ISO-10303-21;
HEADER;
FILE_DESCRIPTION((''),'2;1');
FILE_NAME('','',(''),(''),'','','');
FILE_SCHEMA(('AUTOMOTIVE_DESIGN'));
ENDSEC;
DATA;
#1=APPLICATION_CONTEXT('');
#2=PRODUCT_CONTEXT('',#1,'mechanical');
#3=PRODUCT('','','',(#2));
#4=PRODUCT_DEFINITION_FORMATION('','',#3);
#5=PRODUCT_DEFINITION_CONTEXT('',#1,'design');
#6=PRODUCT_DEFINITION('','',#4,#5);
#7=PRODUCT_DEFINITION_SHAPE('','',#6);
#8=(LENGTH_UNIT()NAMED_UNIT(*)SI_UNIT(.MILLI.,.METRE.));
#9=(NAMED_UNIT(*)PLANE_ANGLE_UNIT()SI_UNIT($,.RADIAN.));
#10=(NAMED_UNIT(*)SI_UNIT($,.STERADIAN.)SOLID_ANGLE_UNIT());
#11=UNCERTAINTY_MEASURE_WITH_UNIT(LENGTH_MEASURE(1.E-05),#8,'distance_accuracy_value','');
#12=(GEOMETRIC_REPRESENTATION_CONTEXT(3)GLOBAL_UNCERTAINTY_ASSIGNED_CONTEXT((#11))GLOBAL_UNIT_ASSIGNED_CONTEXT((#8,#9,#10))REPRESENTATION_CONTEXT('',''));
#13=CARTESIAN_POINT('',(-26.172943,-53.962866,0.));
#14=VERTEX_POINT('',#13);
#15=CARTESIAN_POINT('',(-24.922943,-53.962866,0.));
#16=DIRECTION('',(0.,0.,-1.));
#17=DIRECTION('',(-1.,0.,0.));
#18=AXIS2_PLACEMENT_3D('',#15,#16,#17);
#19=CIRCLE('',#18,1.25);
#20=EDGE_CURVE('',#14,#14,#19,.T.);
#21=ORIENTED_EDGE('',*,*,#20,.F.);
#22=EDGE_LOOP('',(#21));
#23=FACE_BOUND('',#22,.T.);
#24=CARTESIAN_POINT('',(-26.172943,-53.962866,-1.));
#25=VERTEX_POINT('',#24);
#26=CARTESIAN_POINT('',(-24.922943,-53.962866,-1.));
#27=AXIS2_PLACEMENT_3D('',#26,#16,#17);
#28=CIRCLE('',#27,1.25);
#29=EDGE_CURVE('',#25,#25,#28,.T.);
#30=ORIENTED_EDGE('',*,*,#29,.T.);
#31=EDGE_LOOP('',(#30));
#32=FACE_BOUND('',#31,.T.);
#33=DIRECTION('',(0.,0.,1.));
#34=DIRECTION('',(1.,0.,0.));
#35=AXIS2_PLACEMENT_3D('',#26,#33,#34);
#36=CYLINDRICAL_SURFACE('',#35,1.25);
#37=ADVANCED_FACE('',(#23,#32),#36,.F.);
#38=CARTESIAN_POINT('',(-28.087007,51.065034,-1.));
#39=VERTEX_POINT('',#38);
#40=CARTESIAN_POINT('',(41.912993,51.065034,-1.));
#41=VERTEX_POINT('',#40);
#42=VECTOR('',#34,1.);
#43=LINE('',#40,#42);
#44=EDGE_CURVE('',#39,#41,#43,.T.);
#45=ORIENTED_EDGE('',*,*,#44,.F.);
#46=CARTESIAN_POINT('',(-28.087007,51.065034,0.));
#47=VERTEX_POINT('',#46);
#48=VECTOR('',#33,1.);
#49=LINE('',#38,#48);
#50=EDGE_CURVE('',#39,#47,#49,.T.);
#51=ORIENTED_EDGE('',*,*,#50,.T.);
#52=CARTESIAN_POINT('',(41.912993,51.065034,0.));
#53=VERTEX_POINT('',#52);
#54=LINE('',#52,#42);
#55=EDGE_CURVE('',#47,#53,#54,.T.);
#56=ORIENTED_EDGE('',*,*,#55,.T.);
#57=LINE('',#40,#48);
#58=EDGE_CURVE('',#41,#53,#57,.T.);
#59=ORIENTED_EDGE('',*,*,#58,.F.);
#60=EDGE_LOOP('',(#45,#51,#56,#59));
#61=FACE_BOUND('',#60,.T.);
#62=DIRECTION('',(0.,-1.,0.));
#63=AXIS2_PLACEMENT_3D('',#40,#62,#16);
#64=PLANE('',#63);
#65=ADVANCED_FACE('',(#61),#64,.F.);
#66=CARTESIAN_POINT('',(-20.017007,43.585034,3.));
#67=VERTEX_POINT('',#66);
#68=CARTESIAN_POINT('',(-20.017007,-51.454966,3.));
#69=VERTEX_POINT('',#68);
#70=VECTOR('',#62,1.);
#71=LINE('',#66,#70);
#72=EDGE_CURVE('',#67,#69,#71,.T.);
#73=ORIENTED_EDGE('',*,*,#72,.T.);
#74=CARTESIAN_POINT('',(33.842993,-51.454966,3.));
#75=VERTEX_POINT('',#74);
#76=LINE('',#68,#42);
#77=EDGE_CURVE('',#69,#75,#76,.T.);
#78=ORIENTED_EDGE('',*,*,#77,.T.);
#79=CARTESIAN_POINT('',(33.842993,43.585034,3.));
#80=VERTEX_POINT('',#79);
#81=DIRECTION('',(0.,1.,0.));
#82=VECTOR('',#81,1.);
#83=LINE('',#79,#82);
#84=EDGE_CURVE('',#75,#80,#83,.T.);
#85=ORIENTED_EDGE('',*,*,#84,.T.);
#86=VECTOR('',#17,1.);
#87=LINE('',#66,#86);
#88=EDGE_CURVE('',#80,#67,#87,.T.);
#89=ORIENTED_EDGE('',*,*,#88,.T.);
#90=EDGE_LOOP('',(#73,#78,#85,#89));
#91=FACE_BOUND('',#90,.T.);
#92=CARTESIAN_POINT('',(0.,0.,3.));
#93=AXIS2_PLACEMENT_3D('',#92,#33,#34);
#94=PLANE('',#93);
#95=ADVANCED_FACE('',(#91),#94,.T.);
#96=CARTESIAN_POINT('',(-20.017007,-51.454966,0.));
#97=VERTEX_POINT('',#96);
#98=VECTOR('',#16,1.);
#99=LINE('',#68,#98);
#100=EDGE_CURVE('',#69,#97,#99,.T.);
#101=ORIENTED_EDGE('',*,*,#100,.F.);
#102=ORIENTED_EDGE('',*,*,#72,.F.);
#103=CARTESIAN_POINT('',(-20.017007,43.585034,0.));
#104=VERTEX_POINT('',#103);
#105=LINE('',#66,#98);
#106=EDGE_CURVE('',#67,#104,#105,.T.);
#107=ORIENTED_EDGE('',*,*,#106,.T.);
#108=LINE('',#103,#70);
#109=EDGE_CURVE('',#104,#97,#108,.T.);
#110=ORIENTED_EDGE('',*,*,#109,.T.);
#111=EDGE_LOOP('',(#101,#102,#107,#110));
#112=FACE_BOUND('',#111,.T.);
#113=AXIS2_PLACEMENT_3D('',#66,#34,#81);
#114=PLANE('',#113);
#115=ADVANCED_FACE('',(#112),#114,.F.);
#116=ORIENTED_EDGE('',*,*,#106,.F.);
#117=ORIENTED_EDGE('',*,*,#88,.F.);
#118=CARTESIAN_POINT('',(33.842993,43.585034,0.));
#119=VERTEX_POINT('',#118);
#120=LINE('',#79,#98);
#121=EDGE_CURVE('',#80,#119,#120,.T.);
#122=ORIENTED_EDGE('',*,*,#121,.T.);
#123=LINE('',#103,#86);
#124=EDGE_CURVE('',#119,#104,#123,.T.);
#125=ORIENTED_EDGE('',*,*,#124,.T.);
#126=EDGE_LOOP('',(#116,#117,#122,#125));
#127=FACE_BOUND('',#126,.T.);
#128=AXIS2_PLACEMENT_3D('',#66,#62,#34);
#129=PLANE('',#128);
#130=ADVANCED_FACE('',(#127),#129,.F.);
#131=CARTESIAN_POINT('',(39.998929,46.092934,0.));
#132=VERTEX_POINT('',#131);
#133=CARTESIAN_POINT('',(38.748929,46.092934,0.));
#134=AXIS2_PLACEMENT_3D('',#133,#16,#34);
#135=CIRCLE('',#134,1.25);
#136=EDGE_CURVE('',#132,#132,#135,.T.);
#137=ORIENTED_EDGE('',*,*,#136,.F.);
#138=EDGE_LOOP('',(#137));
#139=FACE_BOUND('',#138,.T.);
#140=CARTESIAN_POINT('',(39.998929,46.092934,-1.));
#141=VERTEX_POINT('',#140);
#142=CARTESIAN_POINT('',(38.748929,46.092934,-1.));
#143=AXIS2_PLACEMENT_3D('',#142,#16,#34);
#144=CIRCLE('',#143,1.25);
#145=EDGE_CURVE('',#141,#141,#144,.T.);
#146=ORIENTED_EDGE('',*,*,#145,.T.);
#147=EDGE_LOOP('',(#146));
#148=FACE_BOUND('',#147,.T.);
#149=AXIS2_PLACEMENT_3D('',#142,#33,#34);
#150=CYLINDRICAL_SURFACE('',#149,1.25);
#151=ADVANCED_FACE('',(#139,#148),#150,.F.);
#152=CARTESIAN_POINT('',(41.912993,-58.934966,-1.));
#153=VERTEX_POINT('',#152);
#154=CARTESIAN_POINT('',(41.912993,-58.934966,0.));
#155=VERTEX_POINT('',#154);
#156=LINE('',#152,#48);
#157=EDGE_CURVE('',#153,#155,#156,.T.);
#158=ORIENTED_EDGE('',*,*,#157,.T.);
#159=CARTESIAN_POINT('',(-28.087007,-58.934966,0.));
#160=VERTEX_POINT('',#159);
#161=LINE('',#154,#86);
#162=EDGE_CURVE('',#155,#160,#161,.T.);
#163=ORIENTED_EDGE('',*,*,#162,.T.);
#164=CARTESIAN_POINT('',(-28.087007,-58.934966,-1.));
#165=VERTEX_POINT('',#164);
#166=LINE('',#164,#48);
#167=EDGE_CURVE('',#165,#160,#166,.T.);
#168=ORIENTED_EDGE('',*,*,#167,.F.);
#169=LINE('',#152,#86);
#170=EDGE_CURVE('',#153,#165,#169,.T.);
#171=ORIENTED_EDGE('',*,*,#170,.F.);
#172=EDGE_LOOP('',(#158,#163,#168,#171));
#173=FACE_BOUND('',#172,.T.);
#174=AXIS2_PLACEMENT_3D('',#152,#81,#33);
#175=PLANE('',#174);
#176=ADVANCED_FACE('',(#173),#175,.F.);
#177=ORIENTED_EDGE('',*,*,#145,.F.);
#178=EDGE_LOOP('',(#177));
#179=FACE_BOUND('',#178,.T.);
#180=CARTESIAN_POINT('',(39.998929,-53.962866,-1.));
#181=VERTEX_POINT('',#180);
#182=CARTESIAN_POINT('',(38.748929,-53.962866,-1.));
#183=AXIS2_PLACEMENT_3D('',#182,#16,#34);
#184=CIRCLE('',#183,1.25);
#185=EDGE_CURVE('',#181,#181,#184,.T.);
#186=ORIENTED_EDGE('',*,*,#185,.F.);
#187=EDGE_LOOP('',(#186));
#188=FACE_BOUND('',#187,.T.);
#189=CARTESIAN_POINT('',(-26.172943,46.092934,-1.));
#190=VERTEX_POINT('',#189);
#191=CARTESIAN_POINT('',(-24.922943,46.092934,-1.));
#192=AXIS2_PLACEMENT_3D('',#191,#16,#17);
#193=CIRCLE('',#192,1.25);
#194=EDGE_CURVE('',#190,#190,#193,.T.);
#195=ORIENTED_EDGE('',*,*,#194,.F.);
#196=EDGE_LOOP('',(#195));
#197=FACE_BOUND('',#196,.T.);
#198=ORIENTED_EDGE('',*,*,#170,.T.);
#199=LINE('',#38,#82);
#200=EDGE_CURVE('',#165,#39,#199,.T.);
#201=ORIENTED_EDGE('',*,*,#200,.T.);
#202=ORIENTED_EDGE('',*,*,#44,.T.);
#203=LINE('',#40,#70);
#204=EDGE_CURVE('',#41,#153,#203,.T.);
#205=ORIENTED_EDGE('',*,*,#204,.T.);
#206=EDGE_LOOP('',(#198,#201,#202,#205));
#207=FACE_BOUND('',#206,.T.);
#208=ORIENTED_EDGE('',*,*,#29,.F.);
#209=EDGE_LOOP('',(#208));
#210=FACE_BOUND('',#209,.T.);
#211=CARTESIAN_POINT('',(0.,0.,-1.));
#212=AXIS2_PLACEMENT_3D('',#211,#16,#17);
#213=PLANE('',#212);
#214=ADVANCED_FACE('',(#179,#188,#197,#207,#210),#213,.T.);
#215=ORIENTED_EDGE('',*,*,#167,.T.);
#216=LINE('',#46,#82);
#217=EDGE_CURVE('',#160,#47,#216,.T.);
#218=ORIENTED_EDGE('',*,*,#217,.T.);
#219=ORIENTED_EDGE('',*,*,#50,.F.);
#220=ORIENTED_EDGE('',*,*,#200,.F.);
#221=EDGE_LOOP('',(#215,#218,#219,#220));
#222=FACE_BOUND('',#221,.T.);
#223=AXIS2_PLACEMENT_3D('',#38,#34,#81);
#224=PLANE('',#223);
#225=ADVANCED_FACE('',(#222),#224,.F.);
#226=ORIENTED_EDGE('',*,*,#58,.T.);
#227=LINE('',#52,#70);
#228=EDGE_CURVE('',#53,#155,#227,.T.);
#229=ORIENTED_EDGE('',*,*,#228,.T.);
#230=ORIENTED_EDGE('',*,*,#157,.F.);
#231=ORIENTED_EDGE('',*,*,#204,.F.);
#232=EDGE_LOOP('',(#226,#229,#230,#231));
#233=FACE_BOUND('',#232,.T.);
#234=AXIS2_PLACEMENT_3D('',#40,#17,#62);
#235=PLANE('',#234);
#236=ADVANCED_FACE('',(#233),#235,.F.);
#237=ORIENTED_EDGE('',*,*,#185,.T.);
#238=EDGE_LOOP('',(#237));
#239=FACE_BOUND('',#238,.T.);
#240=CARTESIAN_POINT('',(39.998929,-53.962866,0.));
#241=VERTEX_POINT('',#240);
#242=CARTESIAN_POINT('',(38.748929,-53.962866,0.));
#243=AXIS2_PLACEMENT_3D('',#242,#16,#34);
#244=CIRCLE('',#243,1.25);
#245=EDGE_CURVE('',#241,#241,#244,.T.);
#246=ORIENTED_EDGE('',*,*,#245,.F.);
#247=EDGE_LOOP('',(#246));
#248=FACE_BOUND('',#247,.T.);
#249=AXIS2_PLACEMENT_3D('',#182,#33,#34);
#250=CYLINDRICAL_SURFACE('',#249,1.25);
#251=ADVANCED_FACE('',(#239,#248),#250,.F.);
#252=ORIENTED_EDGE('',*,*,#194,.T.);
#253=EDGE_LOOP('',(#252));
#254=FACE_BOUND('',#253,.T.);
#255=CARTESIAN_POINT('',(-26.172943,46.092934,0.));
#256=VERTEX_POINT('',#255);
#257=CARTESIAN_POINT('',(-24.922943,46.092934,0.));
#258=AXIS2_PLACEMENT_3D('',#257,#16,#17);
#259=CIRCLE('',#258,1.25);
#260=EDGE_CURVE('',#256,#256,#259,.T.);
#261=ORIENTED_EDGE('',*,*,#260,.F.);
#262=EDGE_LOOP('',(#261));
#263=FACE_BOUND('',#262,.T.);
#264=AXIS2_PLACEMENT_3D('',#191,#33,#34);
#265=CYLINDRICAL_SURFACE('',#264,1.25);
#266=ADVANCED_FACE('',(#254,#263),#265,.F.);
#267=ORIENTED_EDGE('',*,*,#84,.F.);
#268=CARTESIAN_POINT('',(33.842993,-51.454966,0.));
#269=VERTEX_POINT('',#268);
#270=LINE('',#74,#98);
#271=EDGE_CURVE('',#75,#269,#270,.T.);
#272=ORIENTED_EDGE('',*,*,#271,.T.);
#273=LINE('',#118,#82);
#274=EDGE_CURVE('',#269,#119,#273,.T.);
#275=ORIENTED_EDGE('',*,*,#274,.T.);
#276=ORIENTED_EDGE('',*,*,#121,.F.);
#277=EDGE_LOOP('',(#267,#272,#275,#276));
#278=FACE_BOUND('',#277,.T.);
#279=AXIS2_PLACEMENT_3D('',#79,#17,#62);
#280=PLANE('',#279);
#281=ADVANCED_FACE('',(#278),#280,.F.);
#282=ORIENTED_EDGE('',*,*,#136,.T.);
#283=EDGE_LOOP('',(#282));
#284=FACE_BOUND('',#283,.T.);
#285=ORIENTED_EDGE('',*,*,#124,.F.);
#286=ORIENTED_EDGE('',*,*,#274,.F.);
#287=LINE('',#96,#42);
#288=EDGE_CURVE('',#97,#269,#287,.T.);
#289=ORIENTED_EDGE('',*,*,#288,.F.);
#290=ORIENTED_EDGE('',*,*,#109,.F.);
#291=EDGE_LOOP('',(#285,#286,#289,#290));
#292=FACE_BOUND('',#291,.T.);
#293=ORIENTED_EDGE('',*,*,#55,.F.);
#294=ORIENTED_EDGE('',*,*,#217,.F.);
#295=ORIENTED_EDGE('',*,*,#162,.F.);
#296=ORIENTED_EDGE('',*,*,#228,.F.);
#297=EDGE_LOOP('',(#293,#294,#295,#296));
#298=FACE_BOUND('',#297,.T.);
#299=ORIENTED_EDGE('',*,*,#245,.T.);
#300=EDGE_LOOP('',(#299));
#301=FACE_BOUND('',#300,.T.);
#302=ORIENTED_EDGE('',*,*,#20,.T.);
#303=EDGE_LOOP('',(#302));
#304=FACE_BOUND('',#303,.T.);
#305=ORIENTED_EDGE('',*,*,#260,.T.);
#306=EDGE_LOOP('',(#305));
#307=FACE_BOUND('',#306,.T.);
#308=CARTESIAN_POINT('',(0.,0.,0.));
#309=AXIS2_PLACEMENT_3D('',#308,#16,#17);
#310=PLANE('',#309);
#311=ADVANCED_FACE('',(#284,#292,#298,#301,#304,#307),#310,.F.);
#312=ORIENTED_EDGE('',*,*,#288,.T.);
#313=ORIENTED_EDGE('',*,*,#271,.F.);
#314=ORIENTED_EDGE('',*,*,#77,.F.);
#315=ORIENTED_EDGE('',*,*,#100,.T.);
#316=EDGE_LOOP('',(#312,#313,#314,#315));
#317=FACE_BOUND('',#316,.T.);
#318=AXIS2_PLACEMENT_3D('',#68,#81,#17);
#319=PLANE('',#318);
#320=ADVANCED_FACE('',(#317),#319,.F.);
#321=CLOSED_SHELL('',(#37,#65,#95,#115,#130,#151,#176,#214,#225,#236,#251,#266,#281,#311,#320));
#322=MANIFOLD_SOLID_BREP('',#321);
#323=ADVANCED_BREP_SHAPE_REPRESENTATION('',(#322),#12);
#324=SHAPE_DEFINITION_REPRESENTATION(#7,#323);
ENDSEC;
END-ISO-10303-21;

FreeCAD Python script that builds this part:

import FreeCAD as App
import Part
import Sketcher
from FreeCAD import Vector
Q = App.Units.Quantity


def add_polygon(sketch, points):
    """Adds a closed chain of lines whose ends are joined by coincident constraints."""
    first, n = sketch.GeometryCount, len(points)
    for a, b in zip(points, points[1:] + points[:1]):
        sketch.addGeometry(Part.LineSegment(App.Vector(*a, 0), App.Vector(*b, 0)), False)
    for i in range(n):
        sketch.addConstraint(Sketcher.Constraint("Coincident", first + i, 2, first + (i + 1) % n, 1))

doc = App.newDocument("Part")
params = doc.addObject("Spreadsheet::Sheet", "Params")
for row, (alias, value) in enumerate([
    ("sketch1_width", "53.86 mm"),
    ("sketch1_height", "95.04 mm"),
    ("pad1_length", "3 mm"),
    ("sketch2_diameter", "2.5 mm"),
    ("sketch2_width", "70 mm"),
    ("sketch2_height", "110 mm"),
    ("pad2_length", "1 mm"),
], start=1):
    params.set(f"A{row}", alias)
    params.set(f"B{row}", "=" + value)
    params.setAlias(f"B{row}", alias)

body = doc.addObject("PartDesign::Body", "Body")

# Sketch on XY plane
sketch1 = body.newObject("Sketcher::SketchObject", "Sketch")
sketch1.AttachmentSupport = (doc.getObject("XY_Plane"), [""])
sketch1.MapMode = "FlatFace"
add_polygon(sketch1, [(-20.017007, 43.585034), (-20.017007, -51.454966), (33.842993, -51.454966), (33.842993, 43.585034)])  # lines 0-3
sketch1.addConstraint(Sketcher.Constraint("Vertical", 0))
sketch1.addConstraint(Sketcher.Constraint("Horizontal", 1))
sketch1.addConstraint(Sketcher.Constraint("Vertical", 2))
sketch1.addConstraint(Sketcher.Constraint("Horizontal", 3))
sketch1.addConstraint(Sketcher.Constraint("DistanceX", 1, 1, 1, 2, Q("53.86 mm")))
sketch1.addConstraint(Sketcher.Constraint("DistanceY", 0, 2, 0, 1, Q("95.04 mm")))
sketch1.addConstraint(Sketcher.Constraint("DistanceX", 0, 2, -1, 1, Q("20.017007 mm")))
sketch1.addConstraint(Sketcher.Constraint("DistanceY", 0, 2, -1, 1, Q("51.454966 mm")))
sketch1.setExpression("Constraints[8]", "Params.sketch1_width")
sketch1.setExpression("Constraints[9]", "Params.sketch1_height")
pad1 = body.newObject("PartDesign::Pad", "Pad")
pad1.Profile = sketch1
pad1.setExpression("Length", "Params.pad1_length")

# Sketch on XY plane
sketch2 = body.newObject("Sketcher::SketchObject", "Sketch001")
sketch2.AttachmentSupport = (doc.getObject("XY_Plane"), [""])
sketch2.MapMode = "FlatFace"
add_polygon(sketch2, [(41.912993, 51.065034), (41.912993, -58.934966), (-28.087007, -58.934966), (-28.087007, 51.065034)])  # lines 0-3
sketch2.addGeometry(Part.Circle(Vector(38.748929, -53.962866, 0), Vector(0, 0, 1), 1.25), False)  # 4
sketch2.addGeometry(Part.Circle(Vector(-24.922943, -53.962866, 0), Vector(0, 0, 1), 1.25), False)  # 5
sketch2.addGeometry(Part.Circle(Vector(38.748929, 46.092934, 0), Vector(0, 0, 1), 1.25), False)  # 6
sketch2.addGeometry(Part.Circle(Vector(-24.922943, 46.092934, 0), Vector(0, 0, 1), 1.25), False)  # 7
sketch2.addConstraint(Sketcher.Constraint("Vertical", 0))
sketch2.addConstraint(Sketcher.Constraint("Horizontal", 1))
sketch2.addConstraint(Sketcher.Constraint("Vertical", 2))
sketch2.addConstraint(Sketcher.Constraint("Horizontal", 3))
sketch2.addConstraint(Sketcher.Constraint("Equal", 4, 5))
sketch2.addConstraint(Sketcher.Constraint("Equal", 5, 6))
sketch2.addConstraint(Sketcher.Constraint("Equal", 6, 7))
sketch2.addConstraint(Sketcher.Constraint("Horizontal", 4, 3, 5, 3))
sketch2.addConstraint(Sketcher.Constraint("Horizontal", 6, 3, 7, 3))
sketch2.addConstraint(Sketcher.Constraint("Vertical", 4, 3, 6, 3))
sketch2.addConstraint(Sketcher.Constraint("Vertical", 5, 3, 7, 3))
sketch2.addConstraint(Sketcher.Constraint("Diameter", 4, Q("2.5 mm")))
sketch2.addConstraint(Sketcher.Constraint("DistanceX", 1, 2, 1, 1, Q("70 mm")))
sketch2.addConstraint(Sketcher.Constraint("DistanceY", 0, 2, 0, 1, Q("110 mm")))
sketch2.addConstraint(Sketcher.Constraint("DistanceY", 4, 3, 6, 3, Q("100.055799 mm")))
sketch2.addConstraint(Sketcher.Constraint("DistanceY", 0, 2, 4, 3, Q("4.9721 mm")))
sketch2.addConstraint(Sketcher.Constraint("DistanceX", -1, 1, 4, 3, Q("38.748929 mm")))
sketch2.addConstraint(Sketcher.Constraint("DistanceY", 4, 3, -1, 1, Q("53.962866 mm")))
sketch2.addConstraint(Sketcher.Constraint("DistanceX", 5, 3, -1, 1, Q("24.922943 mm")))
sketch2.addConstraint(Sketcher.Constraint("DistanceX", -1, 1, 0, 2, Q("41.912993 mm")))
sketch2.setExpression("Constraints[15]", "Params.sketch2_diameter")
sketch2.setExpression("Constraints[16]", "Params.sketch2_width")
sketch2.setExpression("Constraints[17]", "Params.sketch2_height")
pad2 = body.newObject("PartDesign::Pad", "Pad001")
pad2.Profile = sketch2
pad2.setExpression("Length", "Params.pad2_length")
pad2.Reversed = True

doc.recompute()
